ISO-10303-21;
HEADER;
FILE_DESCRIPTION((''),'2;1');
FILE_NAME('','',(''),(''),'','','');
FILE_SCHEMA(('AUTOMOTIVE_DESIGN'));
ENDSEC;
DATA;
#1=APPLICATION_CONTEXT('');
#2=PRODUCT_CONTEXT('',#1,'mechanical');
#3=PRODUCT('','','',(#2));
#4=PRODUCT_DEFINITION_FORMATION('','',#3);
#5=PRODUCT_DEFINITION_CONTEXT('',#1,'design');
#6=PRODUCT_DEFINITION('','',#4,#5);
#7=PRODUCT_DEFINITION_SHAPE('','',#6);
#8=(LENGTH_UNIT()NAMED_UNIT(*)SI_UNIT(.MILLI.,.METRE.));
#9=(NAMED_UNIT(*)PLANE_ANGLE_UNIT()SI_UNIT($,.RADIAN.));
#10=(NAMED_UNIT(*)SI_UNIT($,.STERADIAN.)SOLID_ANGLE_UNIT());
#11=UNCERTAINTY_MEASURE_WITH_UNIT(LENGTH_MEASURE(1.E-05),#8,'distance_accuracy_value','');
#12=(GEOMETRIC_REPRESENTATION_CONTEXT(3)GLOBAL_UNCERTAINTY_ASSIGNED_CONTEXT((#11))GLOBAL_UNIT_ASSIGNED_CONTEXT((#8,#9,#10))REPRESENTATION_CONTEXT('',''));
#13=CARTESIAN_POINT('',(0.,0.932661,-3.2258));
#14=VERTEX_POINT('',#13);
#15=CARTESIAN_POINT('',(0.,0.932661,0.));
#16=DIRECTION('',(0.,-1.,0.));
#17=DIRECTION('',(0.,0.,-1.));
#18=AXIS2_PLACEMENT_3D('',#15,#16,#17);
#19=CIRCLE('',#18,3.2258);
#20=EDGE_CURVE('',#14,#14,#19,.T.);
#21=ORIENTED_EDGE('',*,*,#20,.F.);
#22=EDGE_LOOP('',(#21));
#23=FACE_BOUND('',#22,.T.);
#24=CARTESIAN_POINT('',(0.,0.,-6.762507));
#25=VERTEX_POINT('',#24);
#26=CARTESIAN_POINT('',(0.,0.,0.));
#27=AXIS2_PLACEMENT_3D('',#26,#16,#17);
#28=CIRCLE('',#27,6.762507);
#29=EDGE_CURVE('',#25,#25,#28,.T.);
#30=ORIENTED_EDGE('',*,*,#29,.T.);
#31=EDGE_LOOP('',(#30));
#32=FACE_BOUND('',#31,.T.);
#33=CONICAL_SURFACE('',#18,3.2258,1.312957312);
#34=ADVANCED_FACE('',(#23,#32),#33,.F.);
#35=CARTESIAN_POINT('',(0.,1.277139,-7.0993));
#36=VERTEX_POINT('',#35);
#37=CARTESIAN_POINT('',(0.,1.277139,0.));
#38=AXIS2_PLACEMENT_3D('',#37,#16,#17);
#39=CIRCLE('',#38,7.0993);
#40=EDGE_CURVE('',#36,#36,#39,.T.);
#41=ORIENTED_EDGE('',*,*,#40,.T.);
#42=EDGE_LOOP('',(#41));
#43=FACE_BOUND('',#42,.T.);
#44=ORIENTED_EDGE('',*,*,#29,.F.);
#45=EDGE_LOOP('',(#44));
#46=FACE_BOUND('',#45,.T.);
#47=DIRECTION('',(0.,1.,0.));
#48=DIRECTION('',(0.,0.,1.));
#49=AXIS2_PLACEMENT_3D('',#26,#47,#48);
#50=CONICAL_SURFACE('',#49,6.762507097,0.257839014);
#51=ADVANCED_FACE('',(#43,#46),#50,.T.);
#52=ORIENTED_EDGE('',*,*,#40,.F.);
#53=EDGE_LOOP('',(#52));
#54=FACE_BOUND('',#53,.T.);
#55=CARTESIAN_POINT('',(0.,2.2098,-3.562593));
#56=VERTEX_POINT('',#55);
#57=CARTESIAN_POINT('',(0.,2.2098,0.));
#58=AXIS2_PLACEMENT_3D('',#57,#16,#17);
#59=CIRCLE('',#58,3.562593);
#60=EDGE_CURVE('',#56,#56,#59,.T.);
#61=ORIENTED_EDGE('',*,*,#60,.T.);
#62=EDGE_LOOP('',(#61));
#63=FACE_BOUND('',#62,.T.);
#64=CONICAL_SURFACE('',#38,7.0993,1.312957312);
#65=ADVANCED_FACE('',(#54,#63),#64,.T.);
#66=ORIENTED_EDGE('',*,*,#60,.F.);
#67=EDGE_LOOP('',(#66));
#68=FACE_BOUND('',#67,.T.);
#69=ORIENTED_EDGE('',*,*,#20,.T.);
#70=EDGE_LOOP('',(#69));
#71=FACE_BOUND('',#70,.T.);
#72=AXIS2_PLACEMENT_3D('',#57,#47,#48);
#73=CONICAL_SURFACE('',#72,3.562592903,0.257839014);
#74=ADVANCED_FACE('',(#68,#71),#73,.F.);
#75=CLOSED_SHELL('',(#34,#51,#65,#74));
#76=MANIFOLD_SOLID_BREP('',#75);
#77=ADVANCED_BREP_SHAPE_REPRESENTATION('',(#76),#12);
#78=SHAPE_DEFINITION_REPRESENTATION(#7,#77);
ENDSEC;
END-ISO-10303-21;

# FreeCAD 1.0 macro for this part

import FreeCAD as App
import Part
import Sketcher

V = App.Vector
Q = App.Units.Quantity

doc = App.newDocument("Part")
params = doc.addObject("Spreadsheet::Sheet", "Params")
for row, (alias, value) in enumerate([
    ("sketch1_length", "0.052 in"),
    ("revolution_angle", "360 deg"),
], start=1):
    params.set(f"A{row}", alias)
    params.set(f"B{row}", "=" + value)
    params.setAlias(f"B{row}", alias)

body = doc.addObject("PartDesign::Body", "Body")

# Sketch on XY plane
sketch1 = body.newObject("Sketcher::SketchObject", "Sketch")
sketch1.AttachmentSupport = (doc.getObject("XY_Plane"), [""])
sketch1.MapMode = "FlatFace"
sketch1.addGeometry([
    Part.LineSegment(V(3.2, 0.9, 0), V(6.8, 0, 0)),
    Part.LineSegment(V(6.8, 0, 0), V(7.1, 1.3, 0)),
    Part.LineSegment(V(7.1, 1.3, 0), V(3.6, 2.2, 0)),
    Part.LineSegment(V(3.6, 2.2, 0), V(3.2, 0.9, 0)),
], False)
sketch1.addConstraint([
    Sketcher.Constraint("Coincident", 0, 2, 1, 1),
    Sketcher.Constraint("Coincident", 1, 2, 2, 1),
    Sketcher.Constraint("Coincident", 2, 2, 3, 1),
    Sketcher.Constraint("Coincident", 3, 2, 0, 1),
    Sketcher.Constraint("PointOnObject", 0, 2, -1),
    Sketcher.Constraint("Perpendicular", 0, 1),
    Sketcher.Constraint("Perpendicular", 1, 2),
    Sketcher.Constraint("Perpendicular", 2, 3),
    Sketcher.Constraint("Distance", 1, Q("0.052 in")),
    Sketcher.Constraint("DistanceY", -1, 1, 2, 2, Q("0.087 in")),
    Sketcher.Constraint("DistanceX", -1, 1, 3, 2, Q("0.127 in")),
    Sketcher.Constraint("DistanceX", -1, 1, 1, 2, Q("0.2795 in")),
])
sketch1.setExpression("Constraints[8]", "Params.sketch1_length")
revolution = body.newObject("PartDesign::Revolution", "Revolution")
revolution.Profile = sketch1
revolution.ReferenceAxis = (sketch1, ["V_Axis"])
revolution.setExpression("Angle", "Params.revolution_angle")

doc.recompute()
